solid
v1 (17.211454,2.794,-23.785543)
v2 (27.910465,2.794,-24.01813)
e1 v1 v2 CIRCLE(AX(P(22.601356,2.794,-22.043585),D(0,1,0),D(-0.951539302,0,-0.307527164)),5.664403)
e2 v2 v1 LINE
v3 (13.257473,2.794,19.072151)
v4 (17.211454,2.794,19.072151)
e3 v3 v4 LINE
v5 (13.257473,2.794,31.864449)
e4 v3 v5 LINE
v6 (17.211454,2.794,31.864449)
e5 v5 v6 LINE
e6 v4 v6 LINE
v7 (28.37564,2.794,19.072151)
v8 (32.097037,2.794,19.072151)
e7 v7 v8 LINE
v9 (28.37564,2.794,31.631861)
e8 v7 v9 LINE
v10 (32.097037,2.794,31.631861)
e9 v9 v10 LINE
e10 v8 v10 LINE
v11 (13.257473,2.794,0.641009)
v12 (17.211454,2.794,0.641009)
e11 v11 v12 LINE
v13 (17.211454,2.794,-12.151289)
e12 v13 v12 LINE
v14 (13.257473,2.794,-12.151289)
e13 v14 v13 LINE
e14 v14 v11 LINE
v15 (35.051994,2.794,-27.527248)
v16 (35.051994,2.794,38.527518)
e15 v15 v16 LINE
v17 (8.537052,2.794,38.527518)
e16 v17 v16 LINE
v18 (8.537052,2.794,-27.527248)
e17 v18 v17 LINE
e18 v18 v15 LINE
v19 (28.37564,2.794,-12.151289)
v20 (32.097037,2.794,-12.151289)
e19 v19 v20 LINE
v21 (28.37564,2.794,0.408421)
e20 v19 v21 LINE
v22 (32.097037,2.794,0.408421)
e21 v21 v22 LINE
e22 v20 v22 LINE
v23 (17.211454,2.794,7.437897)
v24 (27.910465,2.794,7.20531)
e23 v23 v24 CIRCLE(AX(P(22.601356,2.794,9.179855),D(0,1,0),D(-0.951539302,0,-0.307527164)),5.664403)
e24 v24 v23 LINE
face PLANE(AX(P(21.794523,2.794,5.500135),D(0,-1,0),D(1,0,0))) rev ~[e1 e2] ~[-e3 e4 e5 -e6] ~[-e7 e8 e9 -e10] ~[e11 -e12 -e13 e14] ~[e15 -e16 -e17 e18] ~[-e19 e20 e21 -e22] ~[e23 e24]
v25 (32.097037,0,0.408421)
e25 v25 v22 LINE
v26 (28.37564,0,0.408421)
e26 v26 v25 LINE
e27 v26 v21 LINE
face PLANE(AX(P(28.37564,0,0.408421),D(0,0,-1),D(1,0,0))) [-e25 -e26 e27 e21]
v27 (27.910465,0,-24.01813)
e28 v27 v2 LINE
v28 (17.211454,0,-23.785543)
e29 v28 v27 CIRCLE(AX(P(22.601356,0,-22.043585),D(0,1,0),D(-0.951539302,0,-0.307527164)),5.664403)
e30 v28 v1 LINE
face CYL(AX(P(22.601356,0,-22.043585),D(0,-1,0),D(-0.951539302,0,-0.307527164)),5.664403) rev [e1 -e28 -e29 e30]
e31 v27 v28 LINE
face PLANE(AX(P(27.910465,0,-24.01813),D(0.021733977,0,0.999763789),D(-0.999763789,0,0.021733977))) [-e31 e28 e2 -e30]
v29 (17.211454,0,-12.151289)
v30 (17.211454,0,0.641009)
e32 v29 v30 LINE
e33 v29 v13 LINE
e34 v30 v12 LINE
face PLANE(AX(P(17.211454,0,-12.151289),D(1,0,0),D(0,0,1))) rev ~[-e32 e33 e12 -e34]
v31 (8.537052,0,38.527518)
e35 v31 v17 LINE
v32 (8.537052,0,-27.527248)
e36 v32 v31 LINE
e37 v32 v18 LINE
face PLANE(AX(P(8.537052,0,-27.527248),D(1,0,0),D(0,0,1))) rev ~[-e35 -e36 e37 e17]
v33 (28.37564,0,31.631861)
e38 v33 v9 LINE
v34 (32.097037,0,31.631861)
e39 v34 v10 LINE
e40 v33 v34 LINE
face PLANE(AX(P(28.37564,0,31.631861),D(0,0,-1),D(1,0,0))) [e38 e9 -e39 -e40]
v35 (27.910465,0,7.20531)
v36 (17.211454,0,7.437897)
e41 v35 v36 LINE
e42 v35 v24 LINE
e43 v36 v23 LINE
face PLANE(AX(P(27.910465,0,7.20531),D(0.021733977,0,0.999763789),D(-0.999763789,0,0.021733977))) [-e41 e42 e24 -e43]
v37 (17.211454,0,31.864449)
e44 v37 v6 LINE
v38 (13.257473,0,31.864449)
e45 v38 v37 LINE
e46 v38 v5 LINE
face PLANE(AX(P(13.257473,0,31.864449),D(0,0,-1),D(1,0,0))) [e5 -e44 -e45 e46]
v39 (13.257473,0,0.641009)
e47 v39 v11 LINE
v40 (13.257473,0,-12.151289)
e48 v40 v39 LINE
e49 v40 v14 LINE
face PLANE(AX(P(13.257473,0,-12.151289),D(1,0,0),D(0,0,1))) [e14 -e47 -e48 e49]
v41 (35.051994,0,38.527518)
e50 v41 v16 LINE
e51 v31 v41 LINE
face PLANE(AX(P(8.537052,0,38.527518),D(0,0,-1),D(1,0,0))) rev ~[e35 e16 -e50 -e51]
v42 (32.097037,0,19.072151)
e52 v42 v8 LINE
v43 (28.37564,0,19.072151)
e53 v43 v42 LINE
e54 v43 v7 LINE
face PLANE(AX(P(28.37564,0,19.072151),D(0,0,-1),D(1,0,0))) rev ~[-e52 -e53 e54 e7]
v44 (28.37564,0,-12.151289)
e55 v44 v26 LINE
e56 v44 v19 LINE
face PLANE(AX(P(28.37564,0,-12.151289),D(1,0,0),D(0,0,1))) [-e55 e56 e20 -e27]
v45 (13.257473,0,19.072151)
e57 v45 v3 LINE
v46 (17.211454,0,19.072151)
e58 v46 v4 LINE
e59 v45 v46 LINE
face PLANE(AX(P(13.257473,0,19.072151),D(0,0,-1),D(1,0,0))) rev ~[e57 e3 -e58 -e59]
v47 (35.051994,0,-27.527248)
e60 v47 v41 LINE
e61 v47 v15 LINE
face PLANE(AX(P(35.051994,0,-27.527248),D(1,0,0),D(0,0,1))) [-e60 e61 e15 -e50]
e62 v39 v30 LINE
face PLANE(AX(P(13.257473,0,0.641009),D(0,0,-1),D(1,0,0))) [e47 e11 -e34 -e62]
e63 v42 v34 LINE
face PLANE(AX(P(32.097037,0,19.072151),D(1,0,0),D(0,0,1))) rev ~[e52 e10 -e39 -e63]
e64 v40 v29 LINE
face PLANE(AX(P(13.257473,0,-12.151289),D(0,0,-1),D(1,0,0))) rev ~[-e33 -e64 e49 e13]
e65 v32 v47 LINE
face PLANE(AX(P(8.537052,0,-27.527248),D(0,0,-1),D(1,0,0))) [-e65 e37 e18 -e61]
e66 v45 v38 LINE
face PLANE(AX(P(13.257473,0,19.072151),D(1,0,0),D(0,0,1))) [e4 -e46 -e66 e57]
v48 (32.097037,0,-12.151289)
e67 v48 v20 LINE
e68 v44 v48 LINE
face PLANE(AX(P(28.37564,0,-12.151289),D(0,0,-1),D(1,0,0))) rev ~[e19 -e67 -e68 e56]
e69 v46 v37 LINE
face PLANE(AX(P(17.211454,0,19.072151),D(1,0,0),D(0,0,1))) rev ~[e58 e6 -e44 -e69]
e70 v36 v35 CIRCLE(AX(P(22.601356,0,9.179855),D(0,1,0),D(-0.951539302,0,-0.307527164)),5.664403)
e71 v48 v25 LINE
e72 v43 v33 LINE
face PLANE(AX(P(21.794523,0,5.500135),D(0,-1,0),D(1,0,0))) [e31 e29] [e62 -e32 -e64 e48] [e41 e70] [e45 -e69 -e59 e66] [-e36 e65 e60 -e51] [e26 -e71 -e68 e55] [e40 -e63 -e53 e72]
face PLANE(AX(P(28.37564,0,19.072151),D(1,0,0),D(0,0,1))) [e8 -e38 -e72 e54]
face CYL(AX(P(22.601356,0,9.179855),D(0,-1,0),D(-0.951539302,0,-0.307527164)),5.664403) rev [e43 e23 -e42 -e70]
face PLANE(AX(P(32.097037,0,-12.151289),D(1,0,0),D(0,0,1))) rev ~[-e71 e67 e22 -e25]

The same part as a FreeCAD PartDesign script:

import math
import FreeCAD as App
import Part
import Sketcher
from FreeCAD import Vector
Q = App.Units.Quantity


def add_polygon(sketch, points):
    """Adds a closed chain of lines whose ends are joined by coincident constraints."""
    first, n = sketch.GeometryCount, len(points)
    for a, b in zip(points, points[1:] + points[:1]):
        sketch.addGeometry(Part.LineSegment(App.Vector(*a, 0), App.Vector(*b, 0)), False)
    for i in range(n):
        sketch.addConstraint(Sketcher.Constraint("Coincident", first + i, 2, first + (i + 1) % n, 1))

doc = App.newDocument("Part")
params = doc.addObject("Spreadsheet::Sheet", "Params")
for row, (alias, value) in enumerate([
    ("pad1_length", "0.11 in"),
], start=1):
    params.set(f"A{row}", alias)
    params.set(f"B{row}", "=" + value)
    params.setAlias(f"B{row}", alias)

body = doc.addObject("PartDesign::Body", "Body")

sketch1 = doc.addObject("Sketcher::SketchObject", "Sketch")
body.addObject(sketch1)
sketch1.AttachmentSupport = (doc.XZ_Plane, [""])
sketch1.MapMode = "FlatFace"
add_polygon(sketch1, [(8.537052, 38.527518), (8.537052, -27.527248), (35.051994, -27.527248), (35.051994, 38.527518)])
sketch1.addGeometry(Part.LineSegment(Vector(27.910465, -24.01813, 0), Vector(17.211454, -23.785543, 0)), False)
sketch1.addGeometry(Part.ArcOfCircle(Part.Circle(Vector(22.601356, -22.043585, 0), Vector(0, 0, 1), 5.664403), math.radians(-20.400995), math.radians(197.910269)), False)
add_polygon(sketch1, [(17.211454, -12.151289), (13.257473, -12.151289), (13.257473, 0.641009), (17.211454, 0.641009)])
add_polygon(sketch1, [(32.097037, -12.151289), (28.37564, -12.151289), (28.37564, 0.408421), (32.097037, 0.408421)])
sketch1.addGeometry(Part.LineSegment(Vector(27.910465, 7.20531, 0), Vector(17.211454, 7.437897, 0)), False)
sketch1.addGeometry(Part.ArcOfCircle(Part.Circle(Vector(22.601356, 9.179855, 0), Vector(0, 0, 1), 5.664403), math.radians(-20.400995), math.radians(197.910269)), False)
add_polygon(sketch1, [(17.211454, 19.072151), (13.257473, 19.072151), (13.257473, 31.864449), (17.211454, 31.864449)])
add_polygon(sketch1, [(32.097037, 19.072151), (28.37564, 19.072151), (28.37564, 31.631861), (32.097037, 31.631861)])
sketch1.addConstraint([
    Sketcher.Constraint("Coincident", 4, 1, 5, 1),
    Sketcher.Constraint("Coincident", 5, 2, 4, 2),
    Sketcher.Constraint("Coincident", 14, 1, 15, 1),
    Sketcher.Constraint("Coincident", 15, 2, 14, 2),
    Sketcher.Constraint("Vertical", 0),
    Sketcher.Constraint("Horizontal", 1),
    Sketcher.Constraint("Vertical", 2),
    Sketcher.Constraint("Horizontal", 3),
    Sketcher.Constraint("Horizontal", 6),
    Sketcher.Constraint("Vertical", 7),
    Sketcher.Constraint("Horizontal", 8),
    Sketcher.Constraint("Vertical", 9),
    Sketcher.Constraint("Horizontal", 10),
    Sketcher.Constraint("Vertical", 11),
    Sketcher.Constraint("Horizontal", 12),
    Sketcher.Constraint("Vertical", 13),
    Sketcher.Constraint("Horizontal", 16),
    Sketcher.Constraint("Vertical", 17),
    Sketcher.Constraint("Horizontal", 18),
    Sketcher.Constraint("Vertical", 19),
    Sketcher.Constraint("Horizontal", 20),
    Sketcher.Constraint("Vertical", 21),
    Sketcher.Constraint("Horizontal", 22),
    Sketcher.Constraint("Vertical", 23),
    Sketcher.Constraint("Equal", 5, 15),
    Sketcher.Constraint("Parallel", 4, 14),
    Sketcher.Constraint("Horizontal", 9, 2, 10, 2),
    Sketcher.Constraint("Horizontal", 19, 2, 20, 2),
    Sketcher.Constraint("Vertical", 5, 3, 15, 3),
    Sketcher.Constraint("Vertical", 5, 2, 8, 2),
    Sketcher.Constraint("Vertical", 4, 1, 14, 1),
    Sketcher.Constraint("Vertical", 7, 2, 16, 2),
    Sketcher.Constraint("Vertical", 15, 2, 18, 2),
    Sketcher.Constraint("Vertical", 11, 2, 20, 2),
    Sketcher.Constraint("Vertical", 13, 2, 22, 2),
    Sketcher.Constraint("Equal", 9, 17),
    Sketcher.Constraint("Equal", 13, 21),
    Sketcher.Constraint("DistanceY", 7, 1, 7, 2, Q("12.792298 mm")),
    Sketcher.Constraint("Radius", 5, Q("5.664403 mm")),
    Sketcher.Constraint("DistanceX", 6, 2, 6, 1, Q("3.953981 mm")),
    Sketcher.Constraint("DistanceY", 11, 1, 11, 2, Q("12.55971 mm")),
    Sketcher.Constraint("DistanceX", 0, 2, 5, 2, Q("8.674402 mm")),
    Sketcher.Constraint("DistanceX", 8, 2, 15, 3, Q("5.389902 mm")),
    Sketcher.Constraint("DistanceY", 8, 2, 14, 1, Q("6.564301 mm")),
    Sketcher.Constraint("Distance", 4, Q("10.701539 mm")),
    Sketcher.Constraint("DistanceX", 1, 1, 1, 2, Q("26.514942 mm")),
    Sketcher.Constraint("DistanceX", 10, 2, 10, 1, Q("3.721397 mm")),
    Sketcher.Constraint("DistanceY", 0, 2, 0, 1, Q("66.054767 mm")),
    Sketcher.Constraint("DistanceX", -1, 1, 0, 2, Q("8.537052 mm")),
    Sketcher.Constraint("DistanceY", 0, 2, -1, 1, Q("27.527248 mm")),
    Sketcher.Constraint("DistanceY", 4, 1, -1, 1, Q("24.01813 mm")),
    Sketcher.Constraint("DistanceY", 6, 2, -1, 1, Q("12.151289 mm")),
    Sketcher.Constraint("DistanceX", -1, 1, 10, 2, Q("28.37564 mm")),
    Sketcher.Constraint("DistanceY", -1, 1, 16, 2, Q("19.072151 mm")),
])
pad1 = doc.addObject("PartDesign::Pad", "Pad")
body.addObject(pad1)
pad1.Profile = sketch1
pad1.setExpression("Length", "Params.pad1_length")
pad1.Reversed = True

doc.recompute()
